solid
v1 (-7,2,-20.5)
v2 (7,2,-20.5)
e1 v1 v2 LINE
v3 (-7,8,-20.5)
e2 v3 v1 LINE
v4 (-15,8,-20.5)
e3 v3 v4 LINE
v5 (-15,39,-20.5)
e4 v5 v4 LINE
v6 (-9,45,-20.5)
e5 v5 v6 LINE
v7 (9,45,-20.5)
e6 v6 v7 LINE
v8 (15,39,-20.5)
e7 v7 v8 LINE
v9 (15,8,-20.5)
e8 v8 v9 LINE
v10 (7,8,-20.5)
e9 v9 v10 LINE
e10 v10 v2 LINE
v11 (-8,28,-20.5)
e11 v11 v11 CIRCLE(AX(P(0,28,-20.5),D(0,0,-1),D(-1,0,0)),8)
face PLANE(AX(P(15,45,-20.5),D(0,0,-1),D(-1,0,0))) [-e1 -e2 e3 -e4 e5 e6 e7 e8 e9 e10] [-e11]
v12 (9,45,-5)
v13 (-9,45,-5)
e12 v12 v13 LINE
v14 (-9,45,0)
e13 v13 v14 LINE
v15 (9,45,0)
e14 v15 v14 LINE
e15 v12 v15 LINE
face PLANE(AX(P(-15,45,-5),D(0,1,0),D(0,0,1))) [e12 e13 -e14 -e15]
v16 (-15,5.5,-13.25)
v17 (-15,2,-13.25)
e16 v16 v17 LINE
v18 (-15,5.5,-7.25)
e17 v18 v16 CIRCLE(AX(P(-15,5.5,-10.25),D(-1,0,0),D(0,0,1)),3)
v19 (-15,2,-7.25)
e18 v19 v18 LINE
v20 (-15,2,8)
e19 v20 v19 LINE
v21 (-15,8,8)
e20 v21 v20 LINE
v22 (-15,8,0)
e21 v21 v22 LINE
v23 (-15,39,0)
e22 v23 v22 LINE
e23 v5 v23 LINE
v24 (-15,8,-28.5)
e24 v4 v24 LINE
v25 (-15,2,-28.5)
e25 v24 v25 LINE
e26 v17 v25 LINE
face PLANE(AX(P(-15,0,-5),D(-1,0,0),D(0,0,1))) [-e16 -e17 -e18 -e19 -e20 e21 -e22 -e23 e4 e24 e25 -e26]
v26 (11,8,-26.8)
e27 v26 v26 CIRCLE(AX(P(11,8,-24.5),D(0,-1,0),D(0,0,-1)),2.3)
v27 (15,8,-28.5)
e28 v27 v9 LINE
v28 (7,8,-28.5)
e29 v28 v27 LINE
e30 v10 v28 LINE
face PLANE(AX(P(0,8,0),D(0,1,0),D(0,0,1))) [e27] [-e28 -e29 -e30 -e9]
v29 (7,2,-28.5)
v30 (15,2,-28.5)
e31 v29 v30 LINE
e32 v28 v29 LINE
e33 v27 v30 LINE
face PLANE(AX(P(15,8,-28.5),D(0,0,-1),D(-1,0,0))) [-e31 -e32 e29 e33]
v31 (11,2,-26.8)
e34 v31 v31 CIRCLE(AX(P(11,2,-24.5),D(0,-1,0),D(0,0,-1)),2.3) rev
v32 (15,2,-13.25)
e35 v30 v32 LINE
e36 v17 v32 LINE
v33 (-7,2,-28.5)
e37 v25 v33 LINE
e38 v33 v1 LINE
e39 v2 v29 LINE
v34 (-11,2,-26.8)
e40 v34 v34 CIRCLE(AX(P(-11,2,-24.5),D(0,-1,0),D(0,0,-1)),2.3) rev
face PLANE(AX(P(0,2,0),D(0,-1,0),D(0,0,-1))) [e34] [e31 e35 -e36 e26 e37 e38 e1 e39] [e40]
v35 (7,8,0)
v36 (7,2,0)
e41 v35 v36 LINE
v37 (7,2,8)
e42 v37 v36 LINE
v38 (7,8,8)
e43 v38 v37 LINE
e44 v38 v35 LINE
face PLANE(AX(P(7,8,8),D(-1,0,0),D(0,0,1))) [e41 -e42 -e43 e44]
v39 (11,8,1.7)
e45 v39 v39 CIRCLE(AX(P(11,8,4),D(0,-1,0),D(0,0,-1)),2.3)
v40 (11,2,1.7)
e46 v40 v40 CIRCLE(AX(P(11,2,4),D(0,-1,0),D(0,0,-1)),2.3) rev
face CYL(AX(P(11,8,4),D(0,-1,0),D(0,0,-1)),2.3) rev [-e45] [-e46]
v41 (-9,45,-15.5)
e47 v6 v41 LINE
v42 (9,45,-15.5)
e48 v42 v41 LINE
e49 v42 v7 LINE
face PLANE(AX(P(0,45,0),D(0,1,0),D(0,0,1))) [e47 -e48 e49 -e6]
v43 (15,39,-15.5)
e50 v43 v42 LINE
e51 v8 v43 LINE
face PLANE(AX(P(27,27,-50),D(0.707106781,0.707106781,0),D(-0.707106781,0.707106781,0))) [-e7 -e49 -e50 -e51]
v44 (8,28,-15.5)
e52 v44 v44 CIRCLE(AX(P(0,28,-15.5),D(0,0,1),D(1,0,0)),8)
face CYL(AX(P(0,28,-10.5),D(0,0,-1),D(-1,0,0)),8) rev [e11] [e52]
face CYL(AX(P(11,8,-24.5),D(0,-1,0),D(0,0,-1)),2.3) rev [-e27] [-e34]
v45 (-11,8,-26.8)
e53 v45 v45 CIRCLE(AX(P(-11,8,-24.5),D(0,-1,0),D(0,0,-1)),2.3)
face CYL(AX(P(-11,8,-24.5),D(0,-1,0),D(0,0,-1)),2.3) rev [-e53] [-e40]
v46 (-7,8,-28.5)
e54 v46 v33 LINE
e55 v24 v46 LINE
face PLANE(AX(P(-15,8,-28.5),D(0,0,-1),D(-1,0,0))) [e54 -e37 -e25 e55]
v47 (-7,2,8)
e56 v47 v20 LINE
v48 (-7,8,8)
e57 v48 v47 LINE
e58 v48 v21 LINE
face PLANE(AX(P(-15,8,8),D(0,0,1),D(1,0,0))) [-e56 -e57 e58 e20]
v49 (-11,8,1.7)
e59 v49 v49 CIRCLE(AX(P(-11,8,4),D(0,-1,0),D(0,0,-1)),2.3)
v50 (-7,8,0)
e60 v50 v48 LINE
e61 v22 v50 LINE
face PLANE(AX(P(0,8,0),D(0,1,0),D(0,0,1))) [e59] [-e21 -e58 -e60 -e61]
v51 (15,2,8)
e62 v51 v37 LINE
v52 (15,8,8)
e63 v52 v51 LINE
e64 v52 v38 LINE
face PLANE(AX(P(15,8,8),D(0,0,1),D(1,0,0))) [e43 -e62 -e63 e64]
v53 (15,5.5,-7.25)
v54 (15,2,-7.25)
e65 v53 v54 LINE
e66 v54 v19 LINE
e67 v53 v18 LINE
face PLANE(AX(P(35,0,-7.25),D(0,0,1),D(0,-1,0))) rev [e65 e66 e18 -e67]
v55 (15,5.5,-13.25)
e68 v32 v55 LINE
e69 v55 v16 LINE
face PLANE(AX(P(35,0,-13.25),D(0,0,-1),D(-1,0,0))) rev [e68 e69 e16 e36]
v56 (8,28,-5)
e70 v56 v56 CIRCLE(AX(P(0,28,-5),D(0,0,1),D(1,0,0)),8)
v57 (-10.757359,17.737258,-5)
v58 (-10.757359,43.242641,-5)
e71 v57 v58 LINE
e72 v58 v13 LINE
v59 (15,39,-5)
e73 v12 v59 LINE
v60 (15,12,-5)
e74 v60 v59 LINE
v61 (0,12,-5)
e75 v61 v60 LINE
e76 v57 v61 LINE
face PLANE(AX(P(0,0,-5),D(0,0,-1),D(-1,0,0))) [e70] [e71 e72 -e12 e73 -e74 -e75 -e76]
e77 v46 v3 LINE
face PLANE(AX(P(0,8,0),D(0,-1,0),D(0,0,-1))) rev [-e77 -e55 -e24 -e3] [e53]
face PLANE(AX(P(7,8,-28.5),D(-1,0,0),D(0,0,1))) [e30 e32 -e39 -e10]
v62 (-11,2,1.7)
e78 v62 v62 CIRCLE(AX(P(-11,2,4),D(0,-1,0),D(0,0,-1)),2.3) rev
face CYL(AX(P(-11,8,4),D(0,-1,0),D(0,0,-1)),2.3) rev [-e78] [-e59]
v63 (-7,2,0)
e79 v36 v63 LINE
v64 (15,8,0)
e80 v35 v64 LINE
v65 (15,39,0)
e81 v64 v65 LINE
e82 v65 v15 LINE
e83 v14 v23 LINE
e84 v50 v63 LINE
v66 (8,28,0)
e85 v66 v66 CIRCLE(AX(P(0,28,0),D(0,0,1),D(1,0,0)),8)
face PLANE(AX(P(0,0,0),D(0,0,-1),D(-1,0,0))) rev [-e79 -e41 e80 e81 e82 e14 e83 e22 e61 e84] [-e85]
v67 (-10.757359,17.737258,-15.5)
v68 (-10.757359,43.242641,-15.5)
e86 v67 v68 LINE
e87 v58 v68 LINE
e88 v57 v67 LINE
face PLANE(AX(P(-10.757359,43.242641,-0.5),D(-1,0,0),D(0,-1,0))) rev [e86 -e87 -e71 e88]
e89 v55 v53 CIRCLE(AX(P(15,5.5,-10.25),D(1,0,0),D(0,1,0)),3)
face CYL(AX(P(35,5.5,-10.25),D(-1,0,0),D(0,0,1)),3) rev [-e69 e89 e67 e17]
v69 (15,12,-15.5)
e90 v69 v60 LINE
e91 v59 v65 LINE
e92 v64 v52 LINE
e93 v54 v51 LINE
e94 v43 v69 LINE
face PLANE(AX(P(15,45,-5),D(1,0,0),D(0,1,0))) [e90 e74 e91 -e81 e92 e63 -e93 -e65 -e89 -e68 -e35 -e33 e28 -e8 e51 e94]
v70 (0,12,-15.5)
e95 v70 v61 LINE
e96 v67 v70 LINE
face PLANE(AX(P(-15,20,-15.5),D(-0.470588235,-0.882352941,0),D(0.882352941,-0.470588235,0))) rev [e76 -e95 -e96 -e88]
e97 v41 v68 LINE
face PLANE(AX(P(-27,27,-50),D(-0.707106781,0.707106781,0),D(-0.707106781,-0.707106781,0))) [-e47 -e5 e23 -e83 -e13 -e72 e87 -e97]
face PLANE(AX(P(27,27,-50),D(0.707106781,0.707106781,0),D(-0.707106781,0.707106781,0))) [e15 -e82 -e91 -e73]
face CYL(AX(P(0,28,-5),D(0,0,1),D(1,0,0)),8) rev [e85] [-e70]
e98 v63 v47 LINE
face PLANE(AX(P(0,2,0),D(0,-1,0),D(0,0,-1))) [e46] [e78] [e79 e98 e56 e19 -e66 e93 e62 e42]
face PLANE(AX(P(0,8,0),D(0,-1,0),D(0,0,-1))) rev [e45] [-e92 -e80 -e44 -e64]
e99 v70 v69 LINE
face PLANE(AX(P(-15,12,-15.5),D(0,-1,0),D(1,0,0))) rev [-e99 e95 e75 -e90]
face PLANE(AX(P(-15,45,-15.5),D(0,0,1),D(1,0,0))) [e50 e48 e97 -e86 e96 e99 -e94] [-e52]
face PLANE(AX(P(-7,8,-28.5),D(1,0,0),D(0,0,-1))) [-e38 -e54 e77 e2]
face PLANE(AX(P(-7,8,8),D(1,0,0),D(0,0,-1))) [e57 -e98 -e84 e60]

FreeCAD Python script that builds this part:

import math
import FreeCAD as App
import Part
import Sketcher

V = App.Vector
Q = App.Units.Quantity


def add_polygon(sketch, points):
    """Adds a closed chain of lines whose ends are joined by coincident constraints."""
    first, n = sketch.GeometryCount, len(points)
    for a, b in zip(points, points[1:] + points[:1]):
        sketch.addGeometry(Part.LineSegment(App.Vector(*a, 0), App.Vector(*b, 0)), False)
    for i in range(n):
        sketch.addConstraint(Sketcher.Constraint("Coincident", first + i, 2, first + (i + 1) % n, 1))

doc = App.newDocument("Part")
body = doc.addObject("PartDesign::Body", "Body")

# Sketch on XY plane
sketch1 = body.newObject("Sketcher::SketchObject", "Sketch")
sketch1.AttachmentSupport = (doc.getObject("XY_Plane"), [""])
sketch1.MapMode = "FlatFace"
add_polygon(sketch1, [(15, 0), (15, 45), (-15, 45), (-15, 0)])  # lines 0-3
sketch1.addGeometry(Part.Circle(V(0, 28, 0), V(0, 0, 1), 8), False)  # 4
sketch1.addConstraint(Sketcher.Constraint("Vertical", 0))
sketch1.addConstraint(Sketcher.Constraint("Horizontal", 1))
sketch1.addConstraint(Sketcher.Constraint("Vertical", 2))
sketch1.addConstraint(Sketcher.Constraint("Horizontal", 3))
sketch1.addConstraint(Sketcher.Constraint("Symmetric", 2, 2, 3, 2, -1, 1))
sketch1.addConstraint(Sketcher.Constraint("PointOnObject", 4, 3, -2))
sketch1.addConstraint(Sketcher.Constraint("Diameter", 4, Q("16 mm")))
sketch1.addConstraint(Sketcher.Constraint("DistanceX", 1, 2, 1, 1, Q("30 mm")))
sketch1.addConstraint(Sketcher.Constraint("DistanceY", 0, 1, 0, 2, Q("45 mm")))
sketch1.addConstraint(Sketcher.Constraint("DistanceY", -1, 1, 4, 3, Q("28 mm")))
pad1 = body.newObject("PartDesign::Pad", "Pad")
pad1.Profile = sketch1
pad1.Length = 5
pad1.Reversed = True

# Sketch on XY plane
sketch2 = body.newObject("Sketcher::SketchObject", "Sketch001")
sketch2.AttachmentSupport = (doc.getObject("XY_Plane"), [""])
sketch2.MapMode = "FlatFace"
sketch2.AttachmentOffset = App.Placement(V(0, 0, -5), App.Rotation())
add_polygon(sketch2, [(15, 12), (15, 0), (-15, 0), (-15, 12)])  # lines 0-3
sketch2.addConstraint(Sketcher.Constraint("Vertical", 0))
sketch2.addConstraint(Sketcher.Constraint("Horizontal", 1))
sketch2.addConstraint(Sketcher.Constraint("Vertical", 2))
sketch2.addConstraint(Sketcher.Constraint("Horizontal", 3))
sketch2.addConstraint(Sketcher.Constraint("Symmetric", 0, 2, 1, 2, -1, 1))
sketch2.addConstraint(Sketcher.Constraint("DistanceX", 1, 2, 1, 1, Q("30 mm")))
sketch2.addConstraint(Sketcher.Constraint("DistanceY", 0, 2, 0, 1, Q("12 mm")))
pad2 = body.newObject("PartDesign::Pad", "Pad001")
pad2.Profile = sketch2
pad2.Length = 10.5
pad2.Reversed = True

# Sketch on XZ plane
sketch3 = body.newObject("Sketcher::SketchObject", "Sketch002")
sketch3.AttachmentSupport = (doc.getObject("XZ_Plane"), [""])
sketch3.MapMode = "FlatFace"
add_polygon(sketch3, [(-15, -16), (-15, -20), (15, -20), (15, -16)])  # lines 0-3
sketch3.addConstraint(Sketcher.Constraint("Vertical", 0))
sketch3.addConstraint(Sketcher.Constraint("Horizontal", 1))
sketch3.addConstraint(Sketcher.Constraint("Vertical", 2))
sketch3.addConstraint(Sketcher.Constraint("Horizontal", 3))
sketch3.addConstraint(Sketcher.Constraint("DistanceX", 1, 1, 1, 2, Q("30 mm")))
sketch3.addConstraint(Sketcher.Constraint("DistanceY", 0, 2, 0, 1, Q("5 mm")))
sketch3.addConstraint(Sketcher.Constraint("DistanceX", 0, 2, -1, 1, Q("15 mm")))
sketch3.addConstraint(Sketcher.Constraint("DistanceY", 0, 2, -1, 1, Q("20.5 mm")))
pad3 = body.newObject("PartDesign::Pad", "Pad002")
pad3.Profile = sketch3
pad3.Length = 45
pad3.Reversed = True

# Sketch on XY plane
sketch4 = body.newObject("Sketcher::SketchObject", "Sketch003")
sketch4.AttachmentSupport = (doc.getObject("XY_Plane"), [""])
sketch4.MapMode = "FlatFace"
sketch4.AttachmentOffset = App.Placement(V(0, 0, -10.5), App.Rotation())
sketch4.addGeometry(Part.Circle(V(0, 28, 0), V(0, 0, 1), 8), False)
sketch4.addConstraint(Sketcher.Constraint("PointOnObject", 0, 3, -2))
sketch4.addConstraint(Sketcher.Constraint("Diameter", 0, Q("16 mm")))
sketch4.addConstraint(Sketcher.Constraint("DistanceY", -1, 1, 0, 3, Q("28 mm")))
pocket1 = body.newObject("PartDesign::Pocket", "Pocket")
pocket1.Profile = sketch4
pocket1.Length = 10

# Sketch on XZ plane
sketch5 = body.newObject("Sketcher::SketchObject", "Sketch004")
sketch5.AttachmentSupport = (doc.getObject("XZ_Plane"), [""])
sketch5.MapMode = "FlatFace"
add_polygon(sketch5, [(-15, 8), (-15, 0), (-7, 0), (-7, 8)])  # lines 0-3
sketch5.addGeometry(Part.Circle(V(-11, 4, 0), V(0, 0, 1), 2.3), False)  # 4
add_polygon(sketch5, [(7, 8), (7, 0), (15, 0), (15, 8)])  # lines 5-8
sketch5.addGeometry(Part.Circle(V(11, 4, 0), V(0, 0, 1), 2.3), False)  # 9
add_polygon(sketch5, [(-15, -20.5), (-15, -28.5), (-7, -28.5), (-7, -20.5)])  # lines 10-13
sketch5.addGeometry(Part.Circle(V(-11, -24.5, 0), V(0, 0, 1), 2.3), False)  # 14
add_polygon(sketch5, [(7, -20.5), (7, -28.5), (15, -28.5), (15, -20.5)])  # lines 15-18
sketch5.addGeometry(Part.Circle(V(11, -24.5, 0), V(0, 0, 1), 2.3), False)  # 19
sketch5.addConstraint(Sketcher.Constraint("Vertical", 0))
sketch5.addConstraint(Sketcher.Constraint("Horizontal", 1))
sketch5.addConstraint(Sketcher.Constraint("Vertical", 2))
sketch5.addConstraint(Sketcher.Constraint("Horizontal", 3))
sketch5.addConstraint(Sketcher.Constraint("Vertical", 5))
sketch5.addConstraint(Sketcher.Constraint("Horizontal", 6))
sketch5.addConstraint(Sketcher.Constraint("Vertical", 7))
sketch5.addConstraint(Sketcher.Constraint("Horizontal", 8))
sketch5.addConstraint(Sketcher.Constraint("Vertical", 10))
sketch5.addConstraint(Sketcher.Constraint("Horizontal", 11))
sketch5.addConstraint(Sketcher.Constraint("Vertical", 12))
sketch5.addConstraint(Sketcher.Constraint("Horizontal", 13))
sketch5.addConstraint(Sketcher.Constraint("Vertical", 15))
sketch5.addConstraint(Sketcher.Constraint("Horizontal", 16))
sketch5.addConstraint(Sketcher.Constraint("Vertical", 17))
sketch5.addConstraint(Sketcher.Constraint("Horizontal", 18))
sketch5.addConstraint(Sketcher.Constraint("Equal", 4, 9))
sketch5.addConstraint(Sketcher.Constraint("Equal", 9, 14))
sketch5.addConstraint(Sketcher.Constraint("Equal", 14, 19))
sketch5.addConstraint(Sketcher.Constraint("Symmetric", 1, 2, 5, 2, -1, 1))
sketch5.addConstraint(Sketcher.Constraint("Symmetric", 4, 3, 9, 3, -2))
sketch5.addConstraint(Sketcher.Constraint("Symmetric", 14, 3, 19, 3, -2))
sketch5.addConstraint(Sketcher.Constraint("Symmetric", 0, 2, 6, 2, -2))
sketch5.addConstraint(Sketcher.Constraint("Symmetric", 11, 2, 15, 2, -2))
sketch5.addConstraint(Sketcher.Constraint("Symmetric", 13, 2, 17, 2, -2))
sketch5.addConstraint(Sketcher.Constraint("Horizontal", 3, 2, 7, 2))
sketch5.addConstraint(Sketcher.Constraint("Vertical", 4, 3, 14, 3))
sketch5.addConstraint(Sketcher.Constraint("Vertical", 3, 2, 10, 2))
sketch5.addConstraint(Sketcher.Constraint("Vertical", 2, 2, 11, 2))
sketch5.addConstraint(Sketcher.Constraint("Equal", 18, 0))
sketch5.addConstraint(Sketcher.Constraint("Equal", 7, 10))
sketch5.addConstraint(Sketcher.Constraint("Diameter", 4, Q("4.6 mm")))
sketch5.addConstraint(Sketcher.Constraint("DistanceX", 1, 1, 1, 2, Q("8 mm")))
sketch5.addConstraint(Sketcher.Constraint("DistanceX", 4, 3, -1, 1, Q("11 mm")))
sketch5.addConstraint(Sketcher.Constraint("DistanceY", -1, 1, 4, 3, Q("4 mm")))
sketch5.addConstraint(Sketcher.Constraint("DistanceX", 0, 2, -1, 1, Q("15 mm")))
sketch5.addConstraint(Sketcher.Constraint("DistanceY", 10, 2, 14, 3, Q("4 mm")))
sketch5.addConstraint(Sketcher.Constraint("DistanceY", 14, 3, -1, 1, Q("24.5 mm")))
pad4 = body.newObject("PartDesign::Pad", "Pad003")
pad4.Profile = sketch5
pad4.Length = 8
pad4.Reversed = True

# Sketch on XZ plane
sketch6 = body.newObject("Sketcher::SketchObject", "Sketch005")
sketch6.AttachmentSupport = (doc.getObject("XZ_Plane"), [""])
sketch6.MapMode = "FlatFace"
add_polygon(sketch6, [(-15, 8), (-15, -28), (-7, -28), (-7, -20), (7, -20), (7, -28), (15, -28), (15, 8), (7, 8), (7, 0), (-7, 0), (-7, 8)])  # lines 0-11
sketch6.addConstraint(Sketcher.Constraint("Vertical", 0))
sketch6.addConstraint(Sketcher.Constraint("Horizontal", 1))
sketch6.addConstraint(Sketcher.Constraint("Vertical", 2))
sketch6.addConstraint(Sketcher.Constraint("Horizontal", 3))
sketch6.addConstraint(Sketcher.Constraint("Vertical", 4))
sketch6.addConstraint(Sketcher.Constraint("Horizontal", 5))
sketch6.addConstraint(Sketcher.Constraint("Vertical", 6))
sketch6.addConstraint(Sketcher.Constraint("Horizontal", 7))
sketch6.addConstraint(Sketcher.Constraint("Vertical", 8))
sketch6.addConstraint(Sketcher.Constraint("Horizontal", 9))
sketch6.addConstraint(Sketcher.Constraint("Vertical", 10))
sketch6.addConstraint(Sketcher.Constraint("Horizontal", 11))
sketch6.addConstraint(Sketcher.Constraint("Symmetric", 8, 2, 9, 2, -1, 1))
sketch6.addConstraint(Sketcher.Constraint("Symmetric", 1, 2, 4, 2, -2))
sketch6.addConstraint(Sketcher.Constraint("Symmetric", 6, 2, 11, 2, -2))
sketch6.addConstraint(Sketcher.Constraint("Vertical", 4, 2, 7, 2))
sketch6.addConstraint(Sketcher.Constraint("Equal", 11, 2))
sketch6.addConstraint(Sketcher.Constraint("Equal", 4, 8))
sketch6.addConstraint(Sketcher.Constraint("DistanceX", 1, 1, 1, 2, Q("8 mm")))
sketch6.addConstraint(Sketcher.Constraint("DistanceX", 3, 1, 3, 2, Q("14 mm")))
sketch6.addConstraint(Sketcher.Constraint("DistanceY", 0, 2, 0, 1, Q("36.5 mm")))
pocket2 = body.newObject("PartDesign::Pocket", "Pocket001")
pocket2.Profile = sketch6
pocket2.Length = 2

# Sketch on YZ plane
sketch7 = body.newObject("Sketcher::SketchObject", "Sketch006")
sketch7.AttachmentSupport = (doc.getObject("YZ_Plane"), [""])
sketch7.MapMode = "FlatFace"
sketch7.AttachmentOffset = App.Placement(V(0, 0, -15), App.Rotation())
sketch7.addGeometry(Part.LineSegment(V(2, -13.2, 0), V(2, -7.2, 0)), False)
sketch7.addGeometry(Part.LineSegment(V(2, -7.2, 0), V(5.5, -7.2, 0)), False)
sketch7.addGeometry(Part.ArcOfCircle(Part.Circle(V(5.5, -10.2, 0), V(0, 0, 1), 3), math.radians(-90), math.radians(90)), False)
sketch7.addGeometry(Part.LineSegment(V(5.5, -13.2, 0), V(2, -13.2, 0)), False)
sketch7.addConstraint(Sketcher.Constraint("Coincident", 0, 2, 1, 1))
sketch7.addConstraint(Sketcher.Constraint("Tangent", 1, 2, 2, 2))
sketch7.addConstraint(Sketcher.Constraint("Tangent", 2, 1, 3, 1))
sketch7.addConstraint(Sketcher.Constraint("Coincident", 3, 2, 0, 1))
sketch7.addConstraint(Sketcher.Constraint("Vertical", 0))
sketch7.addConstraint(Sketcher.Constraint("Horizontal", 1))
sketch7.addConstraint(Sketcher.Constraint("Horizontal", 3))
sketch7.addConstraint(Sketcher.Constraint("Radius", 2, Q("3 mm")))
sketch7.addConstraint(Sketcher.Constraint("DistanceX", 1, 1, 1, 2, Q("3.5 mm")))
sketch7.addConstraint(Sketcher.Constraint("DistanceX", -1, 1, 0, 2, Q("2 mm")))
sketch7.addConstraint(Sketcher.Constraint("DistanceY", 2, 3, -1, 1, Q("10.25 mm")))
pocket3 = body.newObject("PartDesign::Pocket", "Pocket002")
pocket3.Profile = sketch7
pocket3.Length = 50
pocket3.Reversed = True

# Sketch on XY plane
sketch8 = body.newObject("Sketcher::SketchObject", "Sketch007")
sketch8.AttachmentSupport = (doc.getObject("XY_Plane"), [""])
sketch8.MapMode = "FlatFace"
add_polygon(sketch8, [(-9, 45), (-15, 45), (-15, 39)])  # lines 0-2
add_polygon(sketch8, [(15, 45), (9, 45), (15, 39)])  # lines 3-5
sketch8.addConstraint(Sketcher.Constraint("Horizontal", 0))
sketch8.addConstraint(Sketcher.Constraint("Vertical", 1))
sketch8.addConstraint(Sketcher.Constraint("Horizontal", 3))
sketch8.addConstraint(Sketcher.Constraint("Vertical", 5))
sketch8.addConstraint(Sketcher.Constraint("Symmetric", 2, 2, 3, 2, -2))
sketch8.addConstraint(Sketcher.Constraint("Symmetric", 1, 2, 4, 2, -2))
sketch8.addConstraint(Sketcher.Constraint("Perpendicular", 2, 4))
sketch8.addConstraint(Sketcher.Constraint("DistanceX", 0, 2, 0, 1, Q("6 mm")))
sketch8.addConstraint(Sketcher.Constraint("DistanceX", 0, 2, -1, 1, Q("15 mm")))
sketch8.addConstraint(Sketcher.Constraint("DistanceY", -1, 1, 0, 2, Q("45 mm")))
pocket4 = body.newObject("PartDesign::Pocket", "Pocket003")
pocket4.Profile = sketch8
pocket4.Length = 50

# Sketch on XY plane
sketch9 = body.newObject("Sketcher::SketchObject", "Sketch008")
sketch9.AttachmentSupport = (doc.getObject("XY_Plane"), [""])
sketch9.MapMode = "FlatFace"
sketch9.AttachmentOffset = App.Placement(V(0, 0, -5), App.Rotation())
add_polygon(sketch9, [(0, 12), (-15, 12), (-15, 20)])  # lines 0-2
sketch9.addConstraint(Sketcher.Constraint("Horizontal", 0))
sketch9.addConstraint(Sketcher.Constraint("Vertical", 1))
sketch9.addConstraint(Sketcher.Constraint("PointOnObject", 2, 2, -2))
sketch9.addConstraint(Sketcher.Constraint("DistanceX", 0, 2, 0, 1, Q("15 mm")))
sketch9.addConstraint(Sketcher.Constraint("DistanceY", 1, 1, 1, 2, Q("8 mm")))
sketch9.addConstraint(Sketcher.Constraint("DistanceY", -1, 1, 0, 2, Q("12 mm")))
pad5 = body.newObject("PartDesign::Pad", "Pad004")
pad5.Profile = sketch9
pad5.Length = 10.5
pad5.Reversed = True

# Sketch on XY plane
sketch10 = body.newObject("Sketcher::SketchObject", "Sketch009")
sketch10.AttachmentSupport = (doc.getObject("XY_Plane"), [""])
sketch10.MapMode = "FlatFace"
sketch10.AttachmentOffset = App.Placement(V(0, 0, -15.5), App.Rotation())
add_polygon(sketch10, [(-15, 39), (-15, 20), (-11, 17), (-11, 43)])  # lines 0-3
sketch10.addConstraint(Sketcher.Constraint("Vertical", 0))
sketch10.addConstraint(Sketcher.Constraint("Vertical", 2))
sketch10.addConstraint(Sketcher.Constraint("DistanceY", 0, 2, 0, 1, Q("19 mm")))
sketch10.addConstraint(Sketcher.Constraint("Angle", 3, Q("-135 deg")))
sketch10.addConstraint(Sketcher.Constraint("Distance", 3, Q("6 mm")))
sketch10.addConstraint(Sketcher.Constraint("DistanceX", 0, 2, -1, 1, Q("15 mm")))
sketch10.addConstraint(Sketcher.Constraint("DistanceY", -1, 1, 0, 2, Q("20 mm")))
sketch10.addConstraint(Sketcher.Constraint("Distance", 1, Q("5.14809 mm")))
pad6 = body.newObject("PartDesign::Pad", "Pad005")
pad6.Profile = sketch10
pad6.Length = 15

doc.recompute()
